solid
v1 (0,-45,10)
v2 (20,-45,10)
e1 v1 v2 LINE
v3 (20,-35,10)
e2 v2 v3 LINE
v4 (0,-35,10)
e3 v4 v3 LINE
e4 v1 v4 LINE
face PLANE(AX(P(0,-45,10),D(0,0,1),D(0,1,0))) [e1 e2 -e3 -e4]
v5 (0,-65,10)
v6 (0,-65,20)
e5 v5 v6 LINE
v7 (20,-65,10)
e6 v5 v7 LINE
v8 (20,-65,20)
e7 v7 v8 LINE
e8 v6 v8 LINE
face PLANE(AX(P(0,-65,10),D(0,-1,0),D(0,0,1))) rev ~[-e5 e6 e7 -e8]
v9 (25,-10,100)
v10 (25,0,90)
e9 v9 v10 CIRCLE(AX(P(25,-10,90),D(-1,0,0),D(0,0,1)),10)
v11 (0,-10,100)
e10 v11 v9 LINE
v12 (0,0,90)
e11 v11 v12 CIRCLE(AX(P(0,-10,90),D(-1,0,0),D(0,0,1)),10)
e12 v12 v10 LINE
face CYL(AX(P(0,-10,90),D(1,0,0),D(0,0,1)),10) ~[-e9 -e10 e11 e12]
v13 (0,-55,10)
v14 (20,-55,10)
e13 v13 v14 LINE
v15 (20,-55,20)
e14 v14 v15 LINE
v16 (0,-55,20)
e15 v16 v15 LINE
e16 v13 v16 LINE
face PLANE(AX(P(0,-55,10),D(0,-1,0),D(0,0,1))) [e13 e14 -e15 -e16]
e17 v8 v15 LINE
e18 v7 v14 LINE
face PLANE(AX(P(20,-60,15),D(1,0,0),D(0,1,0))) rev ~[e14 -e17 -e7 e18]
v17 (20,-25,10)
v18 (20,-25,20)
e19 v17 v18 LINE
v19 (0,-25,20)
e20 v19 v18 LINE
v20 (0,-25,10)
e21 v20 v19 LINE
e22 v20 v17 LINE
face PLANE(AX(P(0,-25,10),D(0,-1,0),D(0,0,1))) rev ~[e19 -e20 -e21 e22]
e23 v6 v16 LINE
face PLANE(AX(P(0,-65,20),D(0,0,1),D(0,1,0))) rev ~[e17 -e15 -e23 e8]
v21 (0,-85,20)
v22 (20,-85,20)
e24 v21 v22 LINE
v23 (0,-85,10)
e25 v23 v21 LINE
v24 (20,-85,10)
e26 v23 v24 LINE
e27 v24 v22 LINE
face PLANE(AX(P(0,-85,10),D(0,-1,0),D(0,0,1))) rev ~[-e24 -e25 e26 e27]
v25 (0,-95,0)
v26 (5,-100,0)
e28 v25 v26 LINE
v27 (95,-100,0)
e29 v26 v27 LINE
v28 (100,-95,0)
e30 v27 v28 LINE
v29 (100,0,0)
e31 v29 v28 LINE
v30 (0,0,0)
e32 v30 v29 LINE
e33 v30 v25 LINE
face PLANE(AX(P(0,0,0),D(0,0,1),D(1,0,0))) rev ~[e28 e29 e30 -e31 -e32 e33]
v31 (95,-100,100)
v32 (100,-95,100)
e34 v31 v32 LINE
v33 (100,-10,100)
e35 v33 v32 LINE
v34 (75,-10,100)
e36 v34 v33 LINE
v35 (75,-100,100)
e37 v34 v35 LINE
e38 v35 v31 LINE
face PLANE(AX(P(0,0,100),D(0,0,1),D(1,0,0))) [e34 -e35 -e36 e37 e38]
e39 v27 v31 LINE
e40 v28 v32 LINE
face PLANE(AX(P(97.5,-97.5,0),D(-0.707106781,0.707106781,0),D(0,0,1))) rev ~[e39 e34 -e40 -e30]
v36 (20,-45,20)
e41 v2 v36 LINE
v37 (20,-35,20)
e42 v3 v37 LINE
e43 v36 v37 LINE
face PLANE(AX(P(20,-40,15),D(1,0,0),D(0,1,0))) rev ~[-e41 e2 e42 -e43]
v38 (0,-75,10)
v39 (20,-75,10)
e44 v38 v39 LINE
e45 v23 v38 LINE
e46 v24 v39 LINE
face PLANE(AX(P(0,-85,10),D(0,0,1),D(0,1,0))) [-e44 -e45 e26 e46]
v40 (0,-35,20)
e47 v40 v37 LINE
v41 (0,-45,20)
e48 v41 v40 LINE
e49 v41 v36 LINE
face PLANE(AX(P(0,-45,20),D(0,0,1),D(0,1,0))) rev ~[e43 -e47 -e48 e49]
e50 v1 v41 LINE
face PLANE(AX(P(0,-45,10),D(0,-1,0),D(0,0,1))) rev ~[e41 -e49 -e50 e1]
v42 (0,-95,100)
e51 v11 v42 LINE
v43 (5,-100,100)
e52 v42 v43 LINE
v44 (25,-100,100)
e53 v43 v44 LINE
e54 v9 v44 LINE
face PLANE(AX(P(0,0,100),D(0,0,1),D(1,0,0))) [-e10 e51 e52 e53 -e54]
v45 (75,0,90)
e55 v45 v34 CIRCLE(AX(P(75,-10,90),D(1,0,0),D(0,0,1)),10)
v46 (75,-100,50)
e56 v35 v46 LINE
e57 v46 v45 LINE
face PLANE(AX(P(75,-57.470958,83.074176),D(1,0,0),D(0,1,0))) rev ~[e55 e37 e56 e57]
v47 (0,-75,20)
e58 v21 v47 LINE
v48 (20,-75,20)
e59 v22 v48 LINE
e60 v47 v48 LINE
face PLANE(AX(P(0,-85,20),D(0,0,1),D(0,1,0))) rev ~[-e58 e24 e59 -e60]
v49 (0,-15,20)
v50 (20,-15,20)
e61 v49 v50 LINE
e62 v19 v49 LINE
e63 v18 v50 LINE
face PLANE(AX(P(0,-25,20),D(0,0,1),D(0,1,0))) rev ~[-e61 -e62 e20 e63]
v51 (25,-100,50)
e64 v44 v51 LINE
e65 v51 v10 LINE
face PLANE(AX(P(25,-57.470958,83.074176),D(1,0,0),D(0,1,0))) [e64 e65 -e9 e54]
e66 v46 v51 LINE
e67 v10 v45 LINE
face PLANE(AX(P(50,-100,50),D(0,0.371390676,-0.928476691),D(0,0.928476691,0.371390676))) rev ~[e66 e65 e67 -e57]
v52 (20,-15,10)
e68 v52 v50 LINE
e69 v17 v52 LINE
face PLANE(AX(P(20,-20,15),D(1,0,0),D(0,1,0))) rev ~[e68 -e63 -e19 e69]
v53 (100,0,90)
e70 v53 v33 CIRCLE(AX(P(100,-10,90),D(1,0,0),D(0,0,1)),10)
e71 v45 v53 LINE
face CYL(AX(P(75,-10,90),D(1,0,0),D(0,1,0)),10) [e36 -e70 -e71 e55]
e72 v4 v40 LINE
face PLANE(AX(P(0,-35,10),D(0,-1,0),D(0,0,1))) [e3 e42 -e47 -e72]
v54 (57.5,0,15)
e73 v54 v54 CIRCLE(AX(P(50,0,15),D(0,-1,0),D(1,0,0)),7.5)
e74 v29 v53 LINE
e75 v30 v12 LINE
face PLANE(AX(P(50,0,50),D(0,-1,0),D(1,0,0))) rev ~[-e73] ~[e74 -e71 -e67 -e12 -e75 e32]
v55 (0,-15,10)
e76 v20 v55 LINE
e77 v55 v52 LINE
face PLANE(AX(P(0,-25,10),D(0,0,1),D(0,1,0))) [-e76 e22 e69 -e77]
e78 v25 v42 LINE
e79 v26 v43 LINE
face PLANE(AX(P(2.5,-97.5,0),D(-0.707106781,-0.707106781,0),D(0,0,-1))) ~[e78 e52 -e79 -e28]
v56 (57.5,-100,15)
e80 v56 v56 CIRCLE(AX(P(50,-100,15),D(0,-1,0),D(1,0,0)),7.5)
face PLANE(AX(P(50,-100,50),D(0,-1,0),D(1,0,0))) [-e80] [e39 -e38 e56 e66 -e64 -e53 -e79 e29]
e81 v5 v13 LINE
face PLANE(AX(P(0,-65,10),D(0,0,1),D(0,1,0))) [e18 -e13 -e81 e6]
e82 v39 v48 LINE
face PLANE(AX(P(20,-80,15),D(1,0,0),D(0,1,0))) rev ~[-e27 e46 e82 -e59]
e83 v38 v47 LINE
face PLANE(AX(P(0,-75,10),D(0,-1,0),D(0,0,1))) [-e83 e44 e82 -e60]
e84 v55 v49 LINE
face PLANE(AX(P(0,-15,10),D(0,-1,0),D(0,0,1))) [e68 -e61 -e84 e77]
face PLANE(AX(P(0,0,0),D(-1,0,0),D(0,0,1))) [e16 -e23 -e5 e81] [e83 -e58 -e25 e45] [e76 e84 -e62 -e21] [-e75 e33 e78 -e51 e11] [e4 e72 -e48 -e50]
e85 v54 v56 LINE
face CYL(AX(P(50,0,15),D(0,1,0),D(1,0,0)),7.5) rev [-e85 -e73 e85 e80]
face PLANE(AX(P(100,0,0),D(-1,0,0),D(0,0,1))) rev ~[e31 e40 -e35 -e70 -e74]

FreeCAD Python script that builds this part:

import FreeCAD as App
import Part
import Sketcher


def edges_at(feature, points):
    """Names of the edges that pass closest to the given points."""
    edges = feature.Shape.Edges
    near = lambda p: min(range(len(edges)), key=lambda i: edges[i].distToShape(Part.Vertex(*p))[0])
    return sorted({f"Edge{near(p) + 1}" for p in points})

doc = App.newDocument("Part")
params = doc.addObject("Spreadsheet::Sheet", "Params")
for row, (alias, value) in enumerate([
    ("sketch1_diameter", "15 mm"),
    ("sketch1_width", "100 mm"),
    ("pad1_length", "100 mm"),
    ("sketch2_width", "100 mm"),
    ("sketch2_height", "10 mm"),
    ("sketch2_height2", "50 mm"),
    ("pocket1_length", "50 mm"),
    ("fillet_radius", "10 mm"),
    ("chamfer_size", "5 mm"),
    ("sketch3_width", "10 mm"),
    ("pocket2_length", "20 mm"),
], start=1):
    params.set(f"A{row}", alias)
    params.set(f"B{row}", "=" + value)
    params.setAlias(f"B{row}", alias)

body = doc.addObject("PartDesign::Body", "Body")

# Sketch on XZ plane
sketch1 = body.newObject("Sketcher::SketchObject", "Sketch")
sketch1.AttachmentSupport = (doc.getObject("XZ_Plane"), [""])
sketch1.MapMode = "FlatFace"
sketch1.addGeometry([
    Part.LineSegment(App.Vector(0, 100, 0), App.Vector(0, 0, 0)),  # 0
    Part.LineSegment(App.Vector(0, 0, 0), App.Vector(100, 0, 0)),  # 1
    Part.LineSegment(App.Vector(100, 0, 0), App.Vector(100, 100, 0)),  # 2
    Part.LineSegment(App.Vector(100, 100, 0), App.Vector(0, 100, 0)),  # 3
    Part.Circle(App.Vector(50, 15, 0), App.Vector(0, 0, 1), 8),  # 4
], False)
sketch1.addConstraint([
    Sketcher.Constraint("Coincident", 0, 2, 1, 1),
    Sketcher.Constraint("Coincident", 1, 2, 2, 1),
    Sketcher.Constraint("Coincident", 2, 2, 3, 1),
    Sketcher.Constraint("Coincident", 3, 2, 0, 1),
    Sketcher.Constraint("Vertical", 0),
    Sketcher.Constraint("Horizontal", 1),
    Sketcher.Constraint("Vertical", 2),
    Sketcher.Constraint("Horizontal", 3),
    Sketcher.Constraint("Coincident", 0, 2, -1, 1),
    Sketcher.Constraint("Equal", 3, 0),
    Sketcher.Constraint("Diameter", 4, 15.0),
    Sketcher.Constraint("DistanceX", 1, 1, 1, 2, 100.0),
    Sketcher.Constraint("DistanceX", -1, 1, 4, 3, 50.0),
    Sketcher.Constraint("DistanceY", -1, 1, 4, 3, 15.0),
])
sketch1.setExpression("Constraints[10]", "Params.sketch1_diameter")
sketch1.setExpression("Constraints[11]", "Params.sketch1_width")
pad1 = body.newObject("PartDesign::Pad", "Pad")
pad1.Profile = sketch1
pad1.setExpression("Length", "Params.pad1_length")

# Sketch on YZ plane
sketch2 = body.newObject("Sketcher::SketchObject", "Sketch001")
sketch2.AttachmentSupport = (doc.getObject("YZ_Plane"), [""])
sketch2.MapMode = "FlatFace"
sketch2.AttachmentOffset = App.Placement(App.Vector(0, 0, 50), App.Rotation())
sketch2.addGeometry([
    Part.LineSegment(App.Vector(-100, 50, 0), App.Vector(0, 90, 0)),
    Part.LineSegment(App.Vector(0, 90, 0), App.Vector(0, 100, 0)),
    Part.LineSegment(App.Vector(0, 100, 0), App.Vector(-100, 100, 0)),
    Part.LineSegment(App.Vector(-100, 100, 0), App.Vector(-100, 50, 0)),
], False)
sketch2.addConstraint([
    Sketcher.Constraint("Coincident", 0, 2, 1, 1),
    Sketcher.Constraint("Coincident", 1, 2, 2, 1),
    Sketcher.Constraint("Coincident", 2, 2, 3, 1),
    Sketcher.Constraint("Coincident", 3, 2, 0, 1),
    Sketcher.Constraint("Vertical", 1),
    Sketcher.Constraint("Horizontal", 2),
    Sketcher.Constraint("Vertical", 3),
    Sketcher.Constraint("PointOnObject", 0, 2, -2),
    Sketcher.Constraint("DistanceX", 2, 2, 2, 1, 100.0),
    Sketcher.Constraint("DistanceY", 1, 1, 1, 2, 10.0),
    Sketcher.Constraint("DistanceY", 3, 2, 3, 1, 50.0),
    Sketcher.Constraint("DistanceY", -1, 1, 0, 2, 90.0),
])
sketch2.setExpression("Constraints[8]", "Params.sketch2_width")
sketch2.setExpression("Constraints[9]", "Params.sketch2_height")
sketch2.setExpression("Constraints[10]", "Params.sketch2_height2")
pocket1 = body.newObject("PartDesign::Pocket", "Pocket")
pocket1.Profile = sketch2
pocket1.setExpression("Length", "Params.pocket1_length")
pocket1.Midplane = True
doc.recompute()

fillet = body.newObject("PartDesign::Fillet", "Fillet")
fillet.Base = (pocket1, edges_at(pocket1, [(12.5, 0, 100), (87.5, 0, 100)]))
fillet.setExpression("Radius", "Params.fillet_radius")
doc.recompute()

chamfer = body.newObject("PartDesign::Chamfer", "Chamfer")
chamfer.Base = (fillet, edges_at(fillet, [(100, -100, 50), (0, -100, 50)]))
chamfer.setExpression("Size", "Params.chamfer_size")

# Sketch on YZ plane
sketch3 = body.newObject("Sketcher::SketchObject", "Sketch002")
sketch3.AttachmentSupport = (doc.getObject("YZ_Plane"), [""])
sketch3.MapMode = "FlatFace"
sketch3.addGeometry([
    Part.LineSegment(App.Vector(-25, 20, 0), App.Vector(-25, 10, 0)),  # 0
    Part.LineSegment(App.Vector(-25, 10, 0), App.Vector(-15, 10, 0)),  # 1
    Part.LineSegment(App.Vector(-15, 10, 0), App.Vector(-15, 20, 0)),  # 2
    Part.LineSegment(App.Vector(-15, 20, 0), App.Vector(-25, 20, 0)),  # 3
    Part.LineSegment(App.Vector(-45, 20, 0), App.Vector(-45, 10, 0)),  # 4
    Part.LineSegment(App.Vector(-45, 10, 0), App.Vector(-35, 10, 0)),  # 5
    Part.LineSegment(App.Vector(-35, 10, 0), App.Vector(-35, 20, 0)),  # 6
    Part.LineSegment(App.Vector(-35, 20, 0), App.Vector(-45, 20, 0)),  # 7
    Part.LineSegment(App.Vector(-65, 20, 0), App.Vector(-65, 10, 0)),  # 8
    Part.LineSegment(App.Vector(-65, 10, 0), App.Vector(-55, 10, 0)),  # 9
    Part.LineSegment(App.Vector(-55, 10, 0), App.Vector(-55, 20, 0)),  # 10
    Part.LineSegment(App.Vector(-55, 20, 0), App.Vector(-65, 20, 0)),  # 11
    Part.LineSegment(App.Vector(-85, 20, 0), App.Vector(-85, 10, 0)),  # 12
    Part.LineSegment(App.Vector(-85, 10, 0), App.Vector(-75, 10, 0)),  # 13
    Part.LineSegment(App.Vector(-75, 10, 0), App.Vector(-75, 20, 0)),  # 14
    Part.LineSegment(App.Vector(-75, 20, 0), App.Vector(-85, 20, 0)),  # 15
], False)
sketch3.addConstraint([
    Sketcher.Constraint("Coincident", 0, 2, 1, 1),
    Sketcher.Constraint("Coincident", 1, 2, 2, 1),
    Sketcher.Constraint("Coincident", 2, 2, 3, 1),
    Sketcher.Constraint("Coincident", 3, 2, 0, 1),
    Sketcher.Constraint("Coincident", 4, 2, 5, 1),
    Sketcher.Constraint("Coincident", 5, 2, 6, 1),
    Sketcher.Constraint("Coincident", 6, 2, 7, 1),
    Sketcher.Constraint("Coincident", 7, 2, 4, 1),
    Sketcher.Constraint("Coincident", 8, 2, 9, 1),
    Sketcher.Constraint("Coincident", 9, 2, 10, 1),
    Sketcher.Constraint("Coincident", 10, 2, 11, 1),
    Sketcher.Constraint("Coincident", 11, 2, 8, 1),
    Sketcher.Constraint("Coincident", 12, 2, 13, 1),
    Sketcher.Constraint("Coincident", 13, 2, 14, 1),
    Sketcher.Constraint("Coincident", 14, 2, 15, 1),
    Sketcher.Constraint("Coincident", 15, 2, 12, 1),
    Sketcher.Constraint("Vertical", 0),
    Sketcher.Constraint("Horizontal", 1),
    Sketcher.Constraint("Vertical", 2),
    Sketcher.Constraint("Horizontal", 3),
    Sketcher.Constraint("Vertical", 4),
    Sketcher.Constraint("Horizontal", 5),
    Sketcher.Constraint("Vertical", 6),
    Sketcher.Constraint("Horizontal", 7),
    Sketcher.Constraint("Vertical", 8),
    Sketcher.Constraint("Horizontal", 9),
    Sketcher.Constraint("Vertical", 10),
    Sketcher.Constraint("Horizontal", 11),
    Sketcher.Constraint("Vertical", 12),
    Sketcher.Constraint("Horizontal", 13),
    Sketcher.Constraint("Vertical", 14),
    Sketcher.Constraint("Horizontal", 15),
    Sketcher.Constraint("Horizontal", 1, 2, 4, 2),
    Sketcher.Constraint("Horizontal", 3, 2, 6, 2),
    Sketcher.Constraint("Horizontal", 5, 2, 8, 2),
    Sketcher.Constraint("Horizontal", 7, 2, 10, 2),
    Sketcher.Constraint("Horizontal", 9, 2, 12, 2),
    Sketcher.Constraint("Horizontal", 11, 2, 14, 2),
    Sketcher.Constraint("Equal", 3, 5),
    Sketcher.Constraint("Equal", 7, 9),
    Sketcher.Constraint("Equal", 11, 13),
    Sketcher.Constraint("Equal", 15, 0),
    Sketcher.Constraint("DistanceX", 1, 1, 1, 2, 10.0),
    Sketcher.Constraint("DistanceX", 0, 2, -1, 1, 25.0),
    Sketcher.Constraint("DistanceY", -1, 1, 0, 2, 10.0),
    Sketcher.Constraint("DistanceX", 4, 2, -1, 1, 45.0),
    Sketcher.Constraint("DistanceX", 8, 2, -1, 1, 65.0),
    Sketcher.Constraint("DistanceX", 12, 2, -1, 1, 85.0),
])
sketch3.setExpression("Constraints[42]", "Params.sketch3_width")
pocket2 = body.newObject("PartDesign::Pocket", "Pocket001")
pocket2.Profile = sketch3
pocket2.setExpression("Length", "Params.pocket2_length")
pocket2.Reversed = True

doc.recompute()
